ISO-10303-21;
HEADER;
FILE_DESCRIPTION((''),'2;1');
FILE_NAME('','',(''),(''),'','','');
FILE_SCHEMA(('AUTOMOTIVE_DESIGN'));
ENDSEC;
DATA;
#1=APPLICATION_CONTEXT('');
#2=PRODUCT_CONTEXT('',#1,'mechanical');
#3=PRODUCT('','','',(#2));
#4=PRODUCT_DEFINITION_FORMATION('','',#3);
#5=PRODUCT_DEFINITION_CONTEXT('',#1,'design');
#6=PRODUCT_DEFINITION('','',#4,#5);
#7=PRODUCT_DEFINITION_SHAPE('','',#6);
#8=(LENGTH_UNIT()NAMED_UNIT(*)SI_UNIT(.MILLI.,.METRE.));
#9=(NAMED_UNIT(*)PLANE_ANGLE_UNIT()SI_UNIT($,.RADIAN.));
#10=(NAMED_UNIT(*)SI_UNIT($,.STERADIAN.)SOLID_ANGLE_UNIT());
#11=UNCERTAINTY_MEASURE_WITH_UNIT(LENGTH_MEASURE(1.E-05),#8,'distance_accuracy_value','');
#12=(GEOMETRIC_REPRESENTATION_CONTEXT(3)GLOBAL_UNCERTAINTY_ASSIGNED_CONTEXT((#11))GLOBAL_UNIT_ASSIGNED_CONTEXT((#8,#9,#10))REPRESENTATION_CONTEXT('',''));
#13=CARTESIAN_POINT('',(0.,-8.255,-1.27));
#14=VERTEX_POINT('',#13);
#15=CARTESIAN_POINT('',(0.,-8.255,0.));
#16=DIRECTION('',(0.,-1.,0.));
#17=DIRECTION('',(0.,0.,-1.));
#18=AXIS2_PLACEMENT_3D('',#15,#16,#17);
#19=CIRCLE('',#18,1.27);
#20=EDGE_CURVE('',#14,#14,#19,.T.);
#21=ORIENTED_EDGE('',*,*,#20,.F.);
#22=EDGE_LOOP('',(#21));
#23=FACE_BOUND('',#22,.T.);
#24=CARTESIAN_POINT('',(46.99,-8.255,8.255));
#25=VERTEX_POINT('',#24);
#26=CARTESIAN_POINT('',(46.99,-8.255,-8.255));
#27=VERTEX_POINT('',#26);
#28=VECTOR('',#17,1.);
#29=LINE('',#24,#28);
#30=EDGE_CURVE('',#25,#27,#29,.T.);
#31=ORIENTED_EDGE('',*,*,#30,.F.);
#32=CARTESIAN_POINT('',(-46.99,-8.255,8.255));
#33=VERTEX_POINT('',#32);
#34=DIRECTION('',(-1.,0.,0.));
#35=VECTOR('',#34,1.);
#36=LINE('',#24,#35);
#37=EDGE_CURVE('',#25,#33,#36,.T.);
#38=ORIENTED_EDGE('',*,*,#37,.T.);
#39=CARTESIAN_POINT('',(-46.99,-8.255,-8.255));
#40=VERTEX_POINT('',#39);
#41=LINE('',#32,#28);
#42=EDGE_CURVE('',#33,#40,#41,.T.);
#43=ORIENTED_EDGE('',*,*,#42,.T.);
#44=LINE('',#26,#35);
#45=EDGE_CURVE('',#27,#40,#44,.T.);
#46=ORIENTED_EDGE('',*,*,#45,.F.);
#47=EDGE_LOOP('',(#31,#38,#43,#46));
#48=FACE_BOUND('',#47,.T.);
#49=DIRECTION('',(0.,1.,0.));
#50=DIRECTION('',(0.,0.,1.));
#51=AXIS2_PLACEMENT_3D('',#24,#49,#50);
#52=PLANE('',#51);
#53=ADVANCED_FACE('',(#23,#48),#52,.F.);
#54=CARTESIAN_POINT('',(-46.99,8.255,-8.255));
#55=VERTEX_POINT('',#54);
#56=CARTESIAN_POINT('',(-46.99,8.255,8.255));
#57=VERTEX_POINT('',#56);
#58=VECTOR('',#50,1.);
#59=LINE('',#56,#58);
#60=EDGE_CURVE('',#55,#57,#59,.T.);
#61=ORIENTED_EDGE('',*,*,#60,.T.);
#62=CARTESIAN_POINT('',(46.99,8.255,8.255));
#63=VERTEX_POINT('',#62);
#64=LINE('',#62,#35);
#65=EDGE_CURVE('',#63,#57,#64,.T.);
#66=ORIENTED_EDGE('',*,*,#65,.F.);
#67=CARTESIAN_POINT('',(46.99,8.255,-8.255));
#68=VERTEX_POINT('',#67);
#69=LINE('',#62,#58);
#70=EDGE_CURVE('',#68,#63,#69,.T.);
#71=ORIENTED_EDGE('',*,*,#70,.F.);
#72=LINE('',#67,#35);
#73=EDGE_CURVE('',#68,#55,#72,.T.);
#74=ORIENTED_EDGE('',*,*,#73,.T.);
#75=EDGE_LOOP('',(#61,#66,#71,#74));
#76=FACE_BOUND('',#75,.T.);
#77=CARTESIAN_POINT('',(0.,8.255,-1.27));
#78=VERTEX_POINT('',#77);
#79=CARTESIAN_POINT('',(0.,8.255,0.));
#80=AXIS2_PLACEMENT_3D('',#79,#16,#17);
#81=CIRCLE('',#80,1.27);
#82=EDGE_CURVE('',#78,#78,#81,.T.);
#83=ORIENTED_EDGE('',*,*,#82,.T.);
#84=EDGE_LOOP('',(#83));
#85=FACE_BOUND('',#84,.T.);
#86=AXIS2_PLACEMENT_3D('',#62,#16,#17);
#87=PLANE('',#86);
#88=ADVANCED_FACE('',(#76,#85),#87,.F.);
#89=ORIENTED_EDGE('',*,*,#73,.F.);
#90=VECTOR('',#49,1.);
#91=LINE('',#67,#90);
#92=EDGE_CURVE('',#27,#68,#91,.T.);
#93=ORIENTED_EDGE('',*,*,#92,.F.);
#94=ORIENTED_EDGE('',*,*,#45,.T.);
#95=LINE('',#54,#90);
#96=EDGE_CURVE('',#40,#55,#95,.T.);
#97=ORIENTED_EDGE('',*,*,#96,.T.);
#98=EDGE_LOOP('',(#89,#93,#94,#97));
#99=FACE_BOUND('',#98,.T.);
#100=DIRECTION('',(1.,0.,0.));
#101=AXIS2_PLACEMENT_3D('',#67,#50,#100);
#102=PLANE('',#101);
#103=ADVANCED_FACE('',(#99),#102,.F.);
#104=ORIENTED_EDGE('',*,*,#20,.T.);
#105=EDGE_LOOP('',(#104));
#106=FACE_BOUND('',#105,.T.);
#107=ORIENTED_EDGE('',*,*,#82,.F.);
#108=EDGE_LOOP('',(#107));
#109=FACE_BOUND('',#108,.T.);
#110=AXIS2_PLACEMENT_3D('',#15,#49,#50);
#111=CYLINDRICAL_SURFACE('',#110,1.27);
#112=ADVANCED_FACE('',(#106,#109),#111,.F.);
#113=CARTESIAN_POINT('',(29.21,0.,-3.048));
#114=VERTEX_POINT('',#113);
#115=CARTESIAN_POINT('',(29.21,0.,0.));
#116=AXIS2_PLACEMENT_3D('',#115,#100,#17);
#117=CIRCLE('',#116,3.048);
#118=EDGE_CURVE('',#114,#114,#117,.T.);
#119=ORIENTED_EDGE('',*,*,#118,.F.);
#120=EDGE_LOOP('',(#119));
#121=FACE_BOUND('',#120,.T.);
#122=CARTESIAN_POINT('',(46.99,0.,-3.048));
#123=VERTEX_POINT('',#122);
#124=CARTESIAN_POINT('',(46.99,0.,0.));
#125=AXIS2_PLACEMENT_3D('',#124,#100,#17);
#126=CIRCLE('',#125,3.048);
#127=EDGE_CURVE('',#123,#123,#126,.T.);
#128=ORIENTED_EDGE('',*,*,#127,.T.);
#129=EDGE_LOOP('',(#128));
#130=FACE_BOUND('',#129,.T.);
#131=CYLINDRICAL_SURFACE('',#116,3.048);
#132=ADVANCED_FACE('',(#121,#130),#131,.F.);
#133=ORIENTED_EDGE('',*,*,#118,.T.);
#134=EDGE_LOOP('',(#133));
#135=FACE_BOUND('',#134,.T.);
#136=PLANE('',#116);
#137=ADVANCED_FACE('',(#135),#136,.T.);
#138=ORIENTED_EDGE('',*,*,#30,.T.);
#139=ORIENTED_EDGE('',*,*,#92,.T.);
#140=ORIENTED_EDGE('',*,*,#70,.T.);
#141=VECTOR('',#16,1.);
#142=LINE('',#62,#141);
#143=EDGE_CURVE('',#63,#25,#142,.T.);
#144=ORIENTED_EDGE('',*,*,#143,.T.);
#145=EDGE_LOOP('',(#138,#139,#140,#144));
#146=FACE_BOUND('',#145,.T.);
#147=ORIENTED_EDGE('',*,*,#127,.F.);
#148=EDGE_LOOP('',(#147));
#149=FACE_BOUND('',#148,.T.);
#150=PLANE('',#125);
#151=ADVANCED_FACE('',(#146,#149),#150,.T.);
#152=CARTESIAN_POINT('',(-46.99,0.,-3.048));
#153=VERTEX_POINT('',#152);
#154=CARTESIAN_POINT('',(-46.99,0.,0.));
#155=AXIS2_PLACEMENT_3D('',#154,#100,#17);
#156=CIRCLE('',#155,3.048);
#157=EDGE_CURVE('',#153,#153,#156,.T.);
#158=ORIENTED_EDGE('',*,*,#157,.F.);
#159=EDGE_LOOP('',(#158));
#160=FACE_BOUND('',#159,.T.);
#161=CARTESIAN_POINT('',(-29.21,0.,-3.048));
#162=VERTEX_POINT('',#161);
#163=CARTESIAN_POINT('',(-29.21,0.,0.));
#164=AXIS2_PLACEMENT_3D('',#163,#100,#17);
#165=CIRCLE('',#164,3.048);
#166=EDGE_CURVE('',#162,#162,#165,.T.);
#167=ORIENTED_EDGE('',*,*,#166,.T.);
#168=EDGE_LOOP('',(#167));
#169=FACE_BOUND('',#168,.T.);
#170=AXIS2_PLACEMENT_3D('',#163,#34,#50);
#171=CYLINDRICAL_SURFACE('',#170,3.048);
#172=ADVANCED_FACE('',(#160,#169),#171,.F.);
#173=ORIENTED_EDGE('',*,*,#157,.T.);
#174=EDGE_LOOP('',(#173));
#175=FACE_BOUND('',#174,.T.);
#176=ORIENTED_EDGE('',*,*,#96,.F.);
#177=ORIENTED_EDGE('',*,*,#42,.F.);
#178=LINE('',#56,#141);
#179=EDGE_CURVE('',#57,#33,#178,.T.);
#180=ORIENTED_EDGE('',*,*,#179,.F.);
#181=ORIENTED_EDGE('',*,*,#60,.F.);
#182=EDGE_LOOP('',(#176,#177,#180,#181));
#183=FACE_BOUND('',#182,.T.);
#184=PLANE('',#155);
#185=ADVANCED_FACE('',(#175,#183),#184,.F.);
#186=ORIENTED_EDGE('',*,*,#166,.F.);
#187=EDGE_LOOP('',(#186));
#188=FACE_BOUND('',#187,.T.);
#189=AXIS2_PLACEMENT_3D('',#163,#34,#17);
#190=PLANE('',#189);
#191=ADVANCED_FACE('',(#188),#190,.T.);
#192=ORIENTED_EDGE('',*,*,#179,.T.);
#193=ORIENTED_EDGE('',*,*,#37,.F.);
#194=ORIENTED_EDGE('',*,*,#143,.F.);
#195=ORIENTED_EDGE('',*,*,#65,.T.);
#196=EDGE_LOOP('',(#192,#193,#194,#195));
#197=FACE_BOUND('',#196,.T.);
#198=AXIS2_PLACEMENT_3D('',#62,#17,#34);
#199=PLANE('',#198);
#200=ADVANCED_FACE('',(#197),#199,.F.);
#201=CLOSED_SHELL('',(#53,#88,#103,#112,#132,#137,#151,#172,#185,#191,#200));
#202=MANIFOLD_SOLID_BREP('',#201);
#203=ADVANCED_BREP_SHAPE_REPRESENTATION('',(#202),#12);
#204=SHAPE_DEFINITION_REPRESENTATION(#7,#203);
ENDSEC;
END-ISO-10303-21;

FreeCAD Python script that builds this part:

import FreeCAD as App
import Part
import Sketcher
Q = App.Units.Quantity

doc = App.newDocument("Part")
body = doc.addObject("PartDesign::Body", "Body")

sketch1 = body.newObject("Sketcher::SketchObject", "Sketch")
sketch1.AttachmentSupport = (doc.getObject("YZ_Plane"), [""])
sketch1.MapMode = "FlatFace"
sketch1.addGeometry(Part.LineSegment(App.Vector(8, 8, 0), App.Vector(-8, 8, 0)), False)
sketch1.addGeometry(Part.LineSegment(App.Vector(-8, 8, 0), App.Vector(-8, -8, 0)), False)
sketch1.addGeometry(Part.LineSegment(App.Vector(-8, -8, 0), App.Vector(8, -8, 0)), False)
sketch1.addGeometry(Part.LineSegment(App.Vector(8, -8, 0), App.Vector(8, 8, 0)), False)
sketch1.addConstraint(Sketcher.Constraint("Coincident", 0, 2, 1, 1))
sketch1.addConstraint(Sketcher.Constraint("Coincident", 1, 2, 2, 1))
sketch1.addConstraint(Sketcher.Constraint("Coincident", 2, 2, 3, 1))
sketch1.addConstraint(Sketcher.Constraint("Coincident", 3, 2, 0, 1))
sketch1.addConstraint(Sketcher.Constraint("Horizontal", 0))
sketch1.addConstraint(Sketcher.Constraint("Vertical", 1))
sketch1.addConstraint(Sketcher.Constraint("Horizontal", 2))
sketch1.addConstraint(Sketcher.Constraint("Vertical", 3))
sketch1.addConstraint(Sketcher.Constraint("Symmetric", 0, 2, 2, 2, -1, 1))
sketch1.addConstraint(Sketcher.Constraint("Equal", 2, 1))
sketch1.addConstraint(Sketcher.Constraint("DistanceX", 0, 2, 0, 1, Q("0.65 in")))
pad1 = body.newObject("PartDesign::Pad", "Pad")
pad1.Profile = sketch1
pad1.Length = Q("3.7 in")
pad1.Midplane = True

sketch2 = body.newObject("Sketcher::SketchObject", "Sketch001")
sketch2.AttachmentSupport = (doc.getObject("YZ_Plane"), [""])
sketch2.MapMode = "FlatFace"
sketch2.AttachmentOffset = App.Placement(App.Vector(0, 0, 1.85 * 25.4), App.Rotation())
sketch2.addGeometry(Part.Circle(App.Vector(0, 0, 0), App.Vector(0, 0, 1), 3), False)
sketch2.addConstraint(Sketcher.Constraint("Coincident", 0, 3, -1, 1))
sketch2.addConstraint(Sketcher.Constraint("Diameter", 0, Q("0.24 in")))
pocket1 = body.newObject("PartDesign::Pocket", "Pocket")
pocket1.Profile = sketch2
pocket1.Length = Q("0.7 in")
doc.recompute()

mirrored = body.newObject("PartDesign::Mirrored", "Mirrored")
mirrored.Originals = [pocket1]
mirrored.MirrorPlane = (doc.getObject("YZ_Plane"), [""])
body.Tip = mirrored

sketch3 = body.newObject("Sketcher::SketchObject", "Sketch002")
sketch3.AttachmentSupport = (doc.getObject("XZ_Plane"), [""])
sketch3.MapMode = "FlatFace"
sketch3.AttachmentOffset = App.Placement(App.Vector(0, 0, -0.325 * 25.4), App.Rotation())
sketch3.addGeometry(Part.Circle(App.Vector(0, 0, 0), App.Vector(0, 0, 1), 1.3), False)
sketch3.addConstraint(Sketcher.Constraint("Coincident", 0, 3, -1, 1))
sketch3.addConstraint(Sketcher.Constraint("Diameter", 0, Q("0.1 in")))
pocket2 = body.newObject("PartDesign::Pocket", "Pocket001")
pocket2.Profile = sketch3
pocket2.Type = "ThroughAll"
pocket2.Reversed = True

doc.recompute()
